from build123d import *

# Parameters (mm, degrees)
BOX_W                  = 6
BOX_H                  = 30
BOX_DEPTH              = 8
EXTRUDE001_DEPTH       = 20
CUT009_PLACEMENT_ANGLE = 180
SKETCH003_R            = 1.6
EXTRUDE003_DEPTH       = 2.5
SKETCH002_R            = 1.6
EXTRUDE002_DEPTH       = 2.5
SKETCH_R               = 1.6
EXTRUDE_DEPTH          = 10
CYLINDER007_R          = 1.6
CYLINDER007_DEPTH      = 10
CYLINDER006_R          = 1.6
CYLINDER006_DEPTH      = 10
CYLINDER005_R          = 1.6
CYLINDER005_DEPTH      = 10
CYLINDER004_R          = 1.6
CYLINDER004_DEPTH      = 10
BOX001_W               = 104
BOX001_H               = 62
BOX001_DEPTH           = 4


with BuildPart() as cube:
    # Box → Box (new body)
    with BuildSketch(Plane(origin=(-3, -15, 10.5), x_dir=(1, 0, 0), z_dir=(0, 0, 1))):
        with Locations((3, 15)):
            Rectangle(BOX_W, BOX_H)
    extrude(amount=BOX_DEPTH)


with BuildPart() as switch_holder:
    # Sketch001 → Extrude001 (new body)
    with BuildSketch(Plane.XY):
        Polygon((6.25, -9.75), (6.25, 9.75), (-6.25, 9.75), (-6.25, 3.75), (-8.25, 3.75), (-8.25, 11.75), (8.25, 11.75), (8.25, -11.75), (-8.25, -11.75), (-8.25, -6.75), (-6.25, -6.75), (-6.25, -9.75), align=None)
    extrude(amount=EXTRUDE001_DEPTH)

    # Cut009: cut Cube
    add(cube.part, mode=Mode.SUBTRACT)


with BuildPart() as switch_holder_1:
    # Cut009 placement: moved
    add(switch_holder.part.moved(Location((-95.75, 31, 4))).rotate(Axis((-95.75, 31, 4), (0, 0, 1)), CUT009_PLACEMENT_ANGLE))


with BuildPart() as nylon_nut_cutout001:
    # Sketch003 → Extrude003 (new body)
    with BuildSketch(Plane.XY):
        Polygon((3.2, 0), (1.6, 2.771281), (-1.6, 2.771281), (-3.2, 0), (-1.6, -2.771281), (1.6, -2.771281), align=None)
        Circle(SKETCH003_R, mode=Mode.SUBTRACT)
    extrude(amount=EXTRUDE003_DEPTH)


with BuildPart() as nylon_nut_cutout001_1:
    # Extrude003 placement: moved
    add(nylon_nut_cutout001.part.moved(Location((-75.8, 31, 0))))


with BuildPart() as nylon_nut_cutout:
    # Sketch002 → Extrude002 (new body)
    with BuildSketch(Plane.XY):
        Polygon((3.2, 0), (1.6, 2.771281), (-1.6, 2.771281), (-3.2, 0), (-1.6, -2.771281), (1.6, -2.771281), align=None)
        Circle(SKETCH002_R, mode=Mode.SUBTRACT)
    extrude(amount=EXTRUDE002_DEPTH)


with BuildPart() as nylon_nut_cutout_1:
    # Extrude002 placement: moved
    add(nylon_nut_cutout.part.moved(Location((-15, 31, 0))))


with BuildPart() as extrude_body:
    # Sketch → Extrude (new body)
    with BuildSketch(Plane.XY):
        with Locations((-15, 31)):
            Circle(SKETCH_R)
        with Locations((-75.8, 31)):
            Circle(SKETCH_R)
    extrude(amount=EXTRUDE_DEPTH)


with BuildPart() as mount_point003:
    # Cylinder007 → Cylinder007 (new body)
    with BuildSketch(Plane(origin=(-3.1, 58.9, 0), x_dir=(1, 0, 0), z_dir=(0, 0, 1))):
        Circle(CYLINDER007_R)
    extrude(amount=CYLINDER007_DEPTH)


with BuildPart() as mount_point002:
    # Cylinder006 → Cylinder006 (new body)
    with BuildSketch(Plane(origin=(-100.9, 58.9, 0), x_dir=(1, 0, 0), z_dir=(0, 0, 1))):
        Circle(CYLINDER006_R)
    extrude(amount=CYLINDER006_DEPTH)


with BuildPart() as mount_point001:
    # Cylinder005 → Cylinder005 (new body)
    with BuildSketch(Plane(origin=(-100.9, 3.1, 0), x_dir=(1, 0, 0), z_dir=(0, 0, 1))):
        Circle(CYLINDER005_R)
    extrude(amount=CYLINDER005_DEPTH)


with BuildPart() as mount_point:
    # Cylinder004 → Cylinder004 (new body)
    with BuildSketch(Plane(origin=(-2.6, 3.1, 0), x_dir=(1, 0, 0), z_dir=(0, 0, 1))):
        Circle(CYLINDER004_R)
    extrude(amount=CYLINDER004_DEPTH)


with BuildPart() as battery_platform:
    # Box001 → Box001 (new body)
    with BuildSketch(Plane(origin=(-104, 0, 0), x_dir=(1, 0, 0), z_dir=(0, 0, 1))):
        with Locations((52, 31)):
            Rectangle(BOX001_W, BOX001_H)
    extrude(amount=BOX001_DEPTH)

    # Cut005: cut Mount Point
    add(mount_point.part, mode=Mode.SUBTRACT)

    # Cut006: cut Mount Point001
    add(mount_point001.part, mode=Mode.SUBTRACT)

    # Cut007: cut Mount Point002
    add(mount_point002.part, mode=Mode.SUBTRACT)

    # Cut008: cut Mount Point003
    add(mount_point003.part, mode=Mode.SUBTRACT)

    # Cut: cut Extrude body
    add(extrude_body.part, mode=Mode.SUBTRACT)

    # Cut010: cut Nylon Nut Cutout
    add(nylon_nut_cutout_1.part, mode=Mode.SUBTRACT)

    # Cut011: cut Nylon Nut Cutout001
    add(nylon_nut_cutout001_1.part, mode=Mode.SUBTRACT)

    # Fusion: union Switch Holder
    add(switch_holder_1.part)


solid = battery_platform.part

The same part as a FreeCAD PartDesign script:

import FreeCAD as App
import Part
import Sketcher
from FreeCAD import Vector
Q = App.Units.Quantity

doc = App.newDocument("Part")
params = doc.addObject("Spreadsheet::Sheet", "Params")
for row, (alias, value) in enumerate([
    ("sketch1_width", "6 mm"),
    ("sketch1_height", "30 mm"),
    ("pad1_length", "8 mm"),
    ("sketch2_width", "2 mm"),
    ("sketch2_height", "3 mm"),
    ("sketch2_height2", "5 mm"),
    ("sketch2_height3", "8 mm"),
    ("sketch2_width2", "12.5 mm"),
    ("pad2_length", "20 mm"),
    ("sketch3_diameter", "3.2 mm"),
    ("sketch3_width", "3.2 mm"),
    ("sketch3_length", "3.2 mm"),
    ("pad3_length", "2.5 mm"),
    ("sketch4_diameter", "3.2 mm"),
    ("sketch4_width", "3.2 mm"),
    ("sketch4_length", "3.2 mm"),
    ("pad4_length", "2.5 mm"),
    ("sketch5_diameter", "3.2 mm"),
    ("pad5_length", "10 mm"),
    ("sketch6_diameter", "3.2 mm"),
    ("pad6_length", "10 mm"),
    ("sketch7_diameter", "3.2 mm"),
    ("pad7_length", "10 mm"),
    ("sketch8_diameter", "3.2 mm"),
    ("pad8_length", "10 mm"),
    ("sketch9_diameter", "3.2 mm"),
    ("pad9_length", "10 mm"),
    ("sketch10_width", "104 mm"),
    ("sketch10_height", "62 mm"),
    ("pad10_length", "4 mm"),
], start=1):
    params.set(f"A{row}", alias)
    params.set(f"B{row}", "=" + value)
    params.setAlias(f"B{row}", alias)

body = doc.addObject("PartDesign::Body", "Body")

# Sketch on XY plane
sketch1 = doc.addObject("Sketcher::SketchObject", "Sketch")
body.addObject(sketch1)
sketch1.AttachmentSupport = (doc.XY_Plane, [""])
sketch1.MapMode = "FlatFace"
sketch1.AttachmentOffset = App.Placement(Vector(0, 0, 10.5), App.Rotation())
sketch1.addGeometry([
    Part.LineSegment(Vector(-3, 15, 0), Vector(-3, -15, 0)),
    Part.LineSegment(Vector(-3, -15, 0), Vector(3, -15, 0)),
    Part.LineSegment(Vector(3, -15, 0), Vector(3, 15, 0)),
    Part.LineSegment(Vector(3, 15, 0), Vector(-3, 15, 0)),
], False)
sketch1.addConstraint([
    Sketcher.Constraint("Coincident", 0, 2, 1, 1),
    Sketcher.Constraint("Coincident", 1, 2, 2, 1),
    Sketcher.Constraint("Coincident", 2, 2, 3, 1),
    Sketcher.Constraint("Coincident", 3, 2, 0, 1),
    Sketcher.Constraint("Vertical", 0),
    Sketcher.Constraint("Horizontal", 1),
    Sketcher.Constraint("Vertical", 2),
    Sketcher.Constraint("Horizontal", 3),
    Sketcher.Constraint("Symmetric", 0, 2, 2, 2, -1, 1),
    Sketcher.Constraint("DistanceX", 1, 1, 1, 2, 6.0),
    Sketcher.Constraint("DistanceY", 0, 2, 0, 1, 30.0),
])
sketch1.setExpression("Constraints[9]", "Params.sketch1_width")
sketch1.setExpression("Constraints[10]", "Params.sketch1_height")
pad1 = doc.addObject("PartDesign::Pad", "Pad")
body.addObject(pad1)
pad1.Profile = sketch1
pad1.setExpression("Length", "Params.pad1_length")
body2 = doc.addObject("PartDesign::Body", "Body001")

# Sketch on XY plane
sketch2 = doc.addObject("Sketcher::SketchObject", "Sketch001")
body2.addObject(sketch2)
sketch2.AttachmentSupport = (doc.getObject("XY_Plane001"), [""])
sketch2.MapMode = "FlatFace"
sketch2.addGeometry([
    Part.LineSegment(Vector(6.25, 9.75, 0), Vector(6.25, -9.75, 0)),  # 0
    Part.LineSegment(Vector(6.25, -9.75, 0), Vector(-6.25, -9.75, 0)),  # 1
    Part.LineSegment(Vector(-6.25, -9.75, 0), Vector(-6.25, -6.75, 0)),  # 2
    Part.LineSegment(Vector(-6.25, -6.75, 0), Vector(-8.25, -6.75, 0)),  # 3
    Part.LineSegment(Vector(-8.25, -6.75, 0), Vector(-8.25, -11.75, 0)),  # 4
    Part.LineSegment(Vector(-8.25, -11.75, 0), Vector(8.25, -11.75, 0)),  # 5
    Part.LineSegment(Vector(8.25, -11.75, 0), Vector(8.25, 11.75, 0)),  # 6
    Part.LineSegment(Vector(8.25, 11.75, 0), Vector(-8.25, 11.75, 0)),  # 7
    Part.LineSegment(Vector(-8.25, 11.75, 0), Vector(-8.25, 3.75, 0)),  # 8
    Part.LineSegment(Vector(-8.25, 3.75, 0), Vector(-6.25, 3.75, 0)),  # 9
    Part.LineSegment(Vector(-6.25, 3.75, 0), Vector(-6.25, 9.75, 0)),  # 10
    Part.LineSegment(Vector(-6.25, 9.75, 0), Vector(6.25, 9.75, 0)),  # 11
], False)
sketch2.addConstraint([
    Sketcher.Constraint("Coincident", 0, 2, 1, 1),
    Sketcher.Constraint("Coincident", 1, 2, 2, 1),
    Sketcher.Constraint("Coincident", 2, 2, 3, 1),
    Sketcher.Constraint("Coincident", 3, 2, 4, 1),
    Sketcher.Constraint("Coincident", 4, 2, 5, 1),
    Sketcher.Constraint("Coincident", 5, 2, 6, 1),
    Sketcher.Constraint("Coincident", 6, 2, 7, 1),
    Sketcher.Constraint("Coincident", 7, 2, 8, 1),
    Sketcher.Constraint("Coincident", 8, 2, 9, 1),
    Sketcher.Constraint("Coincident", 9, 2, 10, 1),
    Sketcher.Constraint("Coincident", 10, 2, 11, 1),
    Sketcher.Constraint("Coincident", 11, 2, 0, 1),
    Sketcher.Constraint("Vertical", 0),
    Sketcher.Constraint("Horizontal", 1),
    Sketcher.Constraint("Vertical", 2),
    Sketcher.Constraint("Horizontal", 3),
    Sketcher.Constraint("Vertical", 4),
    Sketcher.Constraint("Horizontal", 5),
    Sketcher.Constraint("Vertical", 6),
    Sketcher.Constraint("Horizontal", 7),
    Sketcher.Constraint("Vertical", 8),
    Sketcher.Constraint("Horizontal", 9),
    Sketcher.Constraint("Vertical", 10),
    Sketcher.Constraint("Horizontal", 11),
    Sketcher.Constraint("Symmetric", 4, 2, 6, 2, -1, 1),
    Sketcher.Constraint("Symmetric", 0, 2, 10, 2, -1, 1),
    Sketcher.Constraint("Vertical", 4, 2, 7, 2),
    Sketcher.Constraint("Vertical", 2, 2, 9, 2),
    Sketcher.Constraint("DistanceX", 3, 2, 3, 1, 2.0),
    Sketcher.Constraint("DistanceY", 2, 1, 2, 2, 3.0),
    Sketcher.Constraint("DistanceY", 4, 2, 4, 1, 5.0),
    Sketcher.Constraint("DistanceY", 8, 2, 8, 1, 8.0),
    Sketcher.Constraint("DistanceX", 1, 2, 1, 1, 12.5),
    Sketcher.Constraint("DistanceY", 0, 2, 0, 1, 19.5),
])
sketch2.setExpression("Constraints[28]", "Params.sketch2_width")
sketch2.setExpression("Constraints[29]", "Params.sketch2_height")
sketch2.setExpression("Constraints[30]", "Params.sketch2_height2")
sketch2.setExpression("Constraints[31]", "Params.sketch2_height3")
sketch2.setExpression("Constraints[32]", "Params.sketch2_width2")
pad2 = doc.addObject("PartDesign::Pad", "Pad001")
body2.addObject(pad2)
pad2.Profile = sketch2
pad2.setExpression("Length", "Params.pad2_length")
doc.recompute()

boolean = doc.addObject("PartDesign::Boolean", "Boolean")
body2.addObject(boolean)
boolean.Type = "Cut"
boolean.addObjects([body])
body3 = doc.addObject("PartDesign::Body", "Body002")
doc.recompute()

body2.Placement = App.Placement(Vector(-95.75, 31, 4), App.Rotation(Vector(0, 0, 1), 180))
boolean2 = doc.addObject("PartDesign::Boolean", "Boolean001")
body3.addObject(boolean2)
boolean2.Type = "Fuse"
boolean2.addObjects([body2])
body4 = doc.addObject("PartDesign::Body", "Body003")

# Sketch on XY plane
sketch3 = doc.addObject("Sketcher::SketchObject", "Sketch002")
body4.addObject(sketch3)
sketch3.AttachmentSupport = (doc.getObject("XY_Plane003"), [""])
sketch3.MapMode = "FlatFace"
sketch3.addGeometry([
    Part.LineSegment(Vector(3.2, 0, 0), Vector(1.6, 2.771281, 0)),  # 0
    Part.LineSegment(Vector(1.6, 2.771281, 0), Vector(-1.6, 2.771281, 0)),  # 1
    Part.LineSegment(Vector(-1.6, 2.771281, 0), Vector(-3.2, 0, 0)),  # 2
    Part.LineSegment(Vector(-3.2, 0, 0), Vector(-1.6, -2.771281, 0)),  # 3
    Part.LineSegment(Vector(-1.6, -2.771281, 0), Vector(1.6, -2.771281, 0)),  # 4
    Part.LineSegment(Vector(1.6, -2.771281, 0), Vector(3.2, 0, 0)),  # 5
    Part.Circle(Vector(0, 0, 0), Vector(0, 0, 1), 1.6),  # 6
], False)
sketch3.addConstraint([
    Sketcher.Constraint("Coincident", 0, 2, 1, 1),
    Sketcher.Constraint("Coincident", 1, 2, 2, 1),
    Sketcher.Constraint("Coincident", 2, 2, 3, 1),
    Sketcher.Constraint("Coincident", 3, 2, 4, 1),
    Sketcher.Constraint("Coincident", 4, 2, 5, 1),
    Sketcher.Constraint("Coincident", 5, 2, 0, 1),
    Sketcher.Constraint("Horizontal", 1),
    Sketcher.Constraint("Horizontal", 4),
    Sketcher.Constraint("Coincident", 6, 3, -1, 1),
    Sketcher.Constraint("Symmetric", 0, 2, 3, 2, -1, 1),
    Sketcher.Constraint("Symmetric", 2, 2, 5, 2, -1, 1),
    Sketcher.Constraint("PointOnObject", 2, 2, -1),
    Sketcher.Constraint("Parallel", 2, 5),
    Sketcher.Constraint("Vertical", 1, 2, 3, 2),
    Sketcher.Constraint("Diameter", 6, 3.2),
    Sketcher.Constraint("Angle", 0, Q("120.000003 deg")),
    Sketcher.Constraint("DistanceX", 1, 2, 1, 1, 3.2),
    Sketcher.Constraint("Distance", 0, 3.2),
])
sketch3.setExpression("Constraints[14]", "Params.sketch3_diameter")
sketch3.setExpression("Constraints[16]", "Params.sketch3_width")
sketch3.setExpression("Constraints[17]", "Params.sketch3_length")
pad3 = doc.addObject("PartDesign::Pad", "Pad002")
body4.addObject(pad3)
pad3.Profile = sketch3
pad3.setExpression("Length", "Params.pad3_length")
body5 = doc.addObject("PartDesign::Body", "Body004")
doc.recompute()

body4.Placement = App.Placement(Vector(-75.8, 31, 0), App.Rotation(Vector(0, 0, 1), 0))
boolean3 = doc.addObject("PartDesign::Boolean", "Boolean002")
body5.addObject(boolean3)
boolean3.Type = "Fuse"
boolean3.addObjects([body4])
body6 = doc.addObject("PartDesign::Body", "Body005")

# Sketch on XY plane
sketch4 = doc.addObject("Sketcher::SketchObject", "Sketch003")
body6.addObject(sketch4)
sketch4.AttachmentSupport = (doc.getObject("XY_Plane005"), [""])
sketch4.MapMode = "FlatFace"
sketch4.addGeometry([
    Part.LineSegment(Vector(3.2, 0, 0), Vector(1.6, 2.771281, 0)),  # 0
    Part.LineSegment(Vector(1.6, 2.771281, 0), Vector(-1.6, 2.771281, 0)),  # 1
    Part.LineSegment(Vector(-1.6, 2.771281, 0), Vector(-3.2, 0, 0)),  # 2
    Part.LineSegment(Vector(-3.2, 0, 0), Vector(-1.6, -2.771281, 0)),  # 3
    Part.LineSegment(Vector(-1.6, -2.771281, 0), Vector(1.6, -2.771281, 0)),  # 4
    Part.LineSegment(Vector(1.6, -2.771281, 0), Vector(3.2, 0, 0)),  # 5
    Part.Circle(Vector(0, 0, 0), Vector(0, 0, 1), 1.6),  # 6
], False)
sketch4.addConstraint([
    Sketcher.Constraint("Coincident", 0, 2, 1, 1),
    Sketcher.Constraint("Coincident", 1, 2, 2, 1),
    Sketcher.Constraint("Coincident", 2, 2, 3, 1),
    Sketcher.Constraint("Coincident", 3, 2, 4, 1),
    Sketcher.Constraint("Coincident", 4, 2, 5, 1),
    Sketcher.Constraint("Coincident", 5, 2, 0, 1),
    Sketcher.Constraint("Horizontal", 1),
    Sketcher.Constraint("Horizontal", 4),
    Sketcher.Constraint("Coincident", 6, 3, -1, 1),
    Sketcher.Constraint("Symmetric", 0, 2, 3, 2, -1, 1),
    Sketcher.Constraint("Symmetric", 2, 2, 5, 2, -1, 1),
    Sketcher.Constraint("PointOnObject", 2, 2, -1),
    Sketcher.Constraint("Parallel", 2, 5),
    Sketcher.Constraint("Vertical", 1, 2, 3, 2),
    Sketcher.Constraint("Diameter", 6, 3.2),
    Sketcher.Constraint("Angle", 0, Q("120.000003 deg")),
    Sketcher.Constraint("DistanceX", 1, 2, 1, 1, 3.2),
    Sketcher.Constraint("Distance", 0, 3.2),
])
sketch4.setExpression("Constraints[14]", "Params.sketch4_diameter")
sketch4.setExpression("Constraints[16]", "Params.sketch4_width")
sketch4.setExpression("Constraints[17]", "Params.sketch4_length")
pad4 = doc.addObject("PartDesign::Pad", "Pad003")
body6.addObject(pad4)
pad4.Profile = sketch4
pad4.setExpression("Length", "Params.pad4_length")
body7 = doc.addObject("PartDesign::Body", "Body006")
doc.recompute()

body6.Placement = App.Placement(Vector(-15, 31, 0), App.Rotation(Vector(0, 0, 1), 0))
boolean4 = doc.addObject("PartDesign::Boolean", "Boolean003")
body7.addObject(boolean4)
boolean4.Type = "Fuse"
boolean4.addObjects([body6])
body8 = doc.addObject("PartDesign::Body", "Body007")
body8.AllowCompound = True

# Sketch on XY plane
sketch5 = doc.addObject("Sketcher::SketchObject", "Sketch004")
body8.addObject(sketch5)
sketch5.AttachmentSupport = (doc.getObject("XY_Plane007"), [""])
sketch5.MapMode = "FlatFace"
sketch5.addGeometry([
    Part.Circle(Vector(-15, 31, 0), Vector(0, 0, 1), 1.6),
    Part.Circle(Vector(-75.8, 31, 0), Vector(0, 0, 1), 1.6),
], False)
sketch5.addConstraint([
    Sketcher.Constraint("Equal", 0, 1),
    Sketcher.Constraint("Horizontal", 0, 3, 1, 3),
    Sketcher.Constraint("Diameter", 0, 3.2),
    Sketcher.Constraint("DistanceX", 0, 3, -1, 1, 15.0),
    Sketcher.Constraint("DistanceY", -1, 1, 0, 3, 31.0),
    Sketcher.Constraint("DistanceX", 1, 3, -1, 1, 75.8),
])
sketch5.setExpression("Constraints[2]", "Params.sketch5_diameter")
pad5 = doc.addObject("PartDesign::Pad", "Pad004")
body8.addObject(pad5)
pad5.Profile = sketch5
pad5.setExpression("Length", "Params.pad5_length")
body9 = doc.addObject("PartDesign::Body", "Body008")

# Sketch on XY plane
sketch6 = doc.addObject("Sketcher::SketchObject", "Sketch005")
body9.addObject(sketch6)
sketch6.AttachmentSupport = (doc.getObject("XY_Plane008"), [""])
sketch6.MapMode = "FlatFace"
sketch6.addGeometry(Part.Circle(Vector(-3.1, 58.9, 0), Vector(0, 0, 1), 1.6), False)
sketch6.addConstraint([
    Sketcher.Constraint("Diameter", 0, 3.2),
    Sketcher.Constraint("DistanceX", 0, 3, -1, 1, 3.1),
    Sketcher.Constraint("DistanceY", -1, 1, 0, 3, 58.9),
])
sketch6.setExpression("Constraints[0]", "Params.sketch6_diameter")
pad6 = doc.addObject("PartDesign::Pad", "Pad005")
body9.addObject(pad6)
pad6.Profile = sketch6
pad6.setExpression("Length", "Params.pad6_length")
body10 = doc.addObject("PartDesign::Body", "Body009")

# Sketch on XY plane
sketch7 = doc.addObject("Sketcher::SketchObject", "Sketch006")
body10.addObject(sketch7)
sketch7.AttachmentSupport = (doc.getObject("XY_Plane009"), [""])
sketch7.MapMode = "FlatFace"
sketch7.addGeometry(Part.Circle(Vector(-100.9, 58.9, 0), Vector(0, 0, 1), 1.6), False)
sketch7.addConstraint([
    Sketcher.Constraint("Diameter", 0, 3.2),
    Sketcher.Constraint("DistanceX", 0, 3, -1, 1, 100.9),
    Sketcher.Constraint("DistanceY", -1, 1, 0, 3, 58.9),
])
sketch7.setExpression("Constraints[0]", "Params.sketch7_diameter")
pad7 = doc.addObject("PartDesign::Pad", "Pad006")
body10.addObject(pad7)
pad7.Profile = sketch7
pad7.setExpression("Length", "Params.pad7_length")
body11 = doc.addObject("PartDesign::Body", "Body010")

# Sketch on XY plane
sketch8 = doc.addObject("Sketcher::SketchObject", "Sketch007")
body11.addObject(sketch8)
sketch8.AttachmentSupport = (doc.getObject("XY_Plane010"), [""])
sketch8.MapMode = "FlatFace"
sketch8.addGeometry(Part.Circle(Vector(-100.9, 3.1, 0), Vector(0, 0, 1), 1.6), False)
sketch8.addConstraint([
    Sketcher.Constraint("Diameter", 0, 3.2),
    Sketcher.Constraint("DistanceX", 0, 3, -1, 1, 100.9),
    Sketcher.Constraint("DistanceY", -1, 1, 0, 3, 3.1),
])
sketch8.setExpression("Constraints[0]", "Params.sketch8_diameter")
pad8 = doc.addObject("PartDesign::Pad", "Pad007")
body11.addObject(pad8)
pad8.Profile = sketch8
pad8.setExpression("Length", "Params.pad8_length")
body12 = doc.addObject("PartDesign::Body", "Body011")

# Sketch on XY plane
sketch9 = doc.addObject("Sketcher::SketchObject", "Sketch008")
body12.addObject(sketch9)
sketch9.AttachmentSupport = (doc.getObject("XY_Plane011"), [""])
sketch9.MapMode = "FlatFace"
sketch9.addGeometry(Part.Circle(Vector(-2.6, 3.1, 0), Vector(0, 0, 1), 1.6), False)
sketch9.addConstraint([
    Sketcher.Constraint("Diameter", 0, 3.2),
    Sketcher.Constraint("DistanceX", 0, 3, -1, 1, 2.6),
    Sketcher.Constraint("DistanceY", -1, 1, 0, 3, 3.1),
])
sketch9.setExpression("Constraints[0]", "Params.sketch9_diameter")
pad9 = doc.addObject("PartDesign::Pad", "Pad008")
body12.addObject(pad9)
pad9.Profile = sketch9
pad9.setExpression("Length", "Params.pad9_length")
body13 = doc.addObject("PartDesign::Body", "Body012")

# Sketch on XY plane
sketch10 = doc.addObject("Sketcher::SketchObject", "Sketch009")
body13.addObject(sketch10)
sketch10.AttachmentSupport = (doc.getObject("XY_Plane012"), [""])
sketch10.MapMode = "FlatFace"
sketch10.addGeometry([
    Part.LineSegment(Vector(-104, 62, 0), Vector(-104, 0, 0)),
    Part.LineSegment(Vector(-104, 0, 0), Vector(0, 0, 0)),
    Part.LineSegment(Vector(0, 0, 0), Vector(0, 62, 0)),
    Part.LineSegment(Vector(0, 62, 0), Vector(-104, 62, 0)),
], False)
sketch10.addConstraint([
    Sketcher.Constraint("Coincident", 0, 2, 1, 1),
    Sketcher.Constraint("Coincident", 1, 2, 2, 1),
    Sketcher.Constraint("Coincident", 2, 2, 3, 1),
    Sketcher.Constraint("Coincident", 3, 2, 0, 1),
    Sketcher.Constraint("Vertical", 0),
    Sketcher.Constraint("Horizontal", 1),
    Sketcher.Constraint("Vertical", 2),
    Sketcher.Constraint("Horizontal", 3),
    Sketcher.Constraint("Coincident", 1, 2, -1, 1),
    Sketcher.Constraint("DistanceX", 1, 1, 1, 2, 104.0),
    Sketcher.Constraint("DistanceY", 0, 2, 0, 1, 62.0),
])
sketch10.setExpression("Constraints[9]", "Params.sketch10_width")
sketch10.setExpression("Constraints[10]", "Params.sketch10_height")
pad10 = doc.addObject("PartDesign::Pad", "Pad009")
body13.addObject(pad10)
pad10.Profile = sketch10
pad10.setExpression("Length", "Params.pad10_length")
doc.recompute()

boolean5 = doc.addObject("PartDesign::Boolean", "Boolean004")
body13.addObject(boolean5)
boolean5.Type = "Cut"
boolean5.addObjects([body12])
doc.recompute()

boolean6 = doc.addObject("PartDesign::Boolean", "Boolean005")
body13.addObject(boolean6)
boolean6.Type = "Cut"
boolean6.addObjects([body11])
doc.recompute()

boolean7 = doc.addObject("PartDesign::Boolean", "Boolean006")
body13.addObject(boolean7)
boolean7.Type = "Cut"
boolean7.addObjects([body10])
doc.recompute()

boolean8 = doc.addObject("PartDesign::Boolean", "Boolean007")
body13.addObject(boolean8)
boolean8.Type = "Cut"
boolean8.addObjects([body9])
doc.recompute()

boolean9 = doc.addObject("PartDesign::Boolean", "Boolean008")
body13.addObject(boolean9)
boolean9.Type = "Cut"
boolean9.addObjects([body8])
doc.recompute()

boolean10 = doc.addObject("PartDesign::Boolean", "Boolean009")
body13.addObject(boolean10)
boolean10.Type = "Cut"
boolean10.addObjects([body7])
doc.recompute()

boolean11 = doc.addObject("PartDesign::Boolean", "Boolean010")
body13.addObject(boolean11)
boolean11.Type = "Cut"
boolean11.addObjects([body5])
doc.recompute()

boolean12 = doc.addObject("PartDesign::Boolean", "Boolean011")
body13.addObject(boolean12)
boolean12.Type = "Fuse"
boolean12.addObjects([body3])

doc.recompute()
